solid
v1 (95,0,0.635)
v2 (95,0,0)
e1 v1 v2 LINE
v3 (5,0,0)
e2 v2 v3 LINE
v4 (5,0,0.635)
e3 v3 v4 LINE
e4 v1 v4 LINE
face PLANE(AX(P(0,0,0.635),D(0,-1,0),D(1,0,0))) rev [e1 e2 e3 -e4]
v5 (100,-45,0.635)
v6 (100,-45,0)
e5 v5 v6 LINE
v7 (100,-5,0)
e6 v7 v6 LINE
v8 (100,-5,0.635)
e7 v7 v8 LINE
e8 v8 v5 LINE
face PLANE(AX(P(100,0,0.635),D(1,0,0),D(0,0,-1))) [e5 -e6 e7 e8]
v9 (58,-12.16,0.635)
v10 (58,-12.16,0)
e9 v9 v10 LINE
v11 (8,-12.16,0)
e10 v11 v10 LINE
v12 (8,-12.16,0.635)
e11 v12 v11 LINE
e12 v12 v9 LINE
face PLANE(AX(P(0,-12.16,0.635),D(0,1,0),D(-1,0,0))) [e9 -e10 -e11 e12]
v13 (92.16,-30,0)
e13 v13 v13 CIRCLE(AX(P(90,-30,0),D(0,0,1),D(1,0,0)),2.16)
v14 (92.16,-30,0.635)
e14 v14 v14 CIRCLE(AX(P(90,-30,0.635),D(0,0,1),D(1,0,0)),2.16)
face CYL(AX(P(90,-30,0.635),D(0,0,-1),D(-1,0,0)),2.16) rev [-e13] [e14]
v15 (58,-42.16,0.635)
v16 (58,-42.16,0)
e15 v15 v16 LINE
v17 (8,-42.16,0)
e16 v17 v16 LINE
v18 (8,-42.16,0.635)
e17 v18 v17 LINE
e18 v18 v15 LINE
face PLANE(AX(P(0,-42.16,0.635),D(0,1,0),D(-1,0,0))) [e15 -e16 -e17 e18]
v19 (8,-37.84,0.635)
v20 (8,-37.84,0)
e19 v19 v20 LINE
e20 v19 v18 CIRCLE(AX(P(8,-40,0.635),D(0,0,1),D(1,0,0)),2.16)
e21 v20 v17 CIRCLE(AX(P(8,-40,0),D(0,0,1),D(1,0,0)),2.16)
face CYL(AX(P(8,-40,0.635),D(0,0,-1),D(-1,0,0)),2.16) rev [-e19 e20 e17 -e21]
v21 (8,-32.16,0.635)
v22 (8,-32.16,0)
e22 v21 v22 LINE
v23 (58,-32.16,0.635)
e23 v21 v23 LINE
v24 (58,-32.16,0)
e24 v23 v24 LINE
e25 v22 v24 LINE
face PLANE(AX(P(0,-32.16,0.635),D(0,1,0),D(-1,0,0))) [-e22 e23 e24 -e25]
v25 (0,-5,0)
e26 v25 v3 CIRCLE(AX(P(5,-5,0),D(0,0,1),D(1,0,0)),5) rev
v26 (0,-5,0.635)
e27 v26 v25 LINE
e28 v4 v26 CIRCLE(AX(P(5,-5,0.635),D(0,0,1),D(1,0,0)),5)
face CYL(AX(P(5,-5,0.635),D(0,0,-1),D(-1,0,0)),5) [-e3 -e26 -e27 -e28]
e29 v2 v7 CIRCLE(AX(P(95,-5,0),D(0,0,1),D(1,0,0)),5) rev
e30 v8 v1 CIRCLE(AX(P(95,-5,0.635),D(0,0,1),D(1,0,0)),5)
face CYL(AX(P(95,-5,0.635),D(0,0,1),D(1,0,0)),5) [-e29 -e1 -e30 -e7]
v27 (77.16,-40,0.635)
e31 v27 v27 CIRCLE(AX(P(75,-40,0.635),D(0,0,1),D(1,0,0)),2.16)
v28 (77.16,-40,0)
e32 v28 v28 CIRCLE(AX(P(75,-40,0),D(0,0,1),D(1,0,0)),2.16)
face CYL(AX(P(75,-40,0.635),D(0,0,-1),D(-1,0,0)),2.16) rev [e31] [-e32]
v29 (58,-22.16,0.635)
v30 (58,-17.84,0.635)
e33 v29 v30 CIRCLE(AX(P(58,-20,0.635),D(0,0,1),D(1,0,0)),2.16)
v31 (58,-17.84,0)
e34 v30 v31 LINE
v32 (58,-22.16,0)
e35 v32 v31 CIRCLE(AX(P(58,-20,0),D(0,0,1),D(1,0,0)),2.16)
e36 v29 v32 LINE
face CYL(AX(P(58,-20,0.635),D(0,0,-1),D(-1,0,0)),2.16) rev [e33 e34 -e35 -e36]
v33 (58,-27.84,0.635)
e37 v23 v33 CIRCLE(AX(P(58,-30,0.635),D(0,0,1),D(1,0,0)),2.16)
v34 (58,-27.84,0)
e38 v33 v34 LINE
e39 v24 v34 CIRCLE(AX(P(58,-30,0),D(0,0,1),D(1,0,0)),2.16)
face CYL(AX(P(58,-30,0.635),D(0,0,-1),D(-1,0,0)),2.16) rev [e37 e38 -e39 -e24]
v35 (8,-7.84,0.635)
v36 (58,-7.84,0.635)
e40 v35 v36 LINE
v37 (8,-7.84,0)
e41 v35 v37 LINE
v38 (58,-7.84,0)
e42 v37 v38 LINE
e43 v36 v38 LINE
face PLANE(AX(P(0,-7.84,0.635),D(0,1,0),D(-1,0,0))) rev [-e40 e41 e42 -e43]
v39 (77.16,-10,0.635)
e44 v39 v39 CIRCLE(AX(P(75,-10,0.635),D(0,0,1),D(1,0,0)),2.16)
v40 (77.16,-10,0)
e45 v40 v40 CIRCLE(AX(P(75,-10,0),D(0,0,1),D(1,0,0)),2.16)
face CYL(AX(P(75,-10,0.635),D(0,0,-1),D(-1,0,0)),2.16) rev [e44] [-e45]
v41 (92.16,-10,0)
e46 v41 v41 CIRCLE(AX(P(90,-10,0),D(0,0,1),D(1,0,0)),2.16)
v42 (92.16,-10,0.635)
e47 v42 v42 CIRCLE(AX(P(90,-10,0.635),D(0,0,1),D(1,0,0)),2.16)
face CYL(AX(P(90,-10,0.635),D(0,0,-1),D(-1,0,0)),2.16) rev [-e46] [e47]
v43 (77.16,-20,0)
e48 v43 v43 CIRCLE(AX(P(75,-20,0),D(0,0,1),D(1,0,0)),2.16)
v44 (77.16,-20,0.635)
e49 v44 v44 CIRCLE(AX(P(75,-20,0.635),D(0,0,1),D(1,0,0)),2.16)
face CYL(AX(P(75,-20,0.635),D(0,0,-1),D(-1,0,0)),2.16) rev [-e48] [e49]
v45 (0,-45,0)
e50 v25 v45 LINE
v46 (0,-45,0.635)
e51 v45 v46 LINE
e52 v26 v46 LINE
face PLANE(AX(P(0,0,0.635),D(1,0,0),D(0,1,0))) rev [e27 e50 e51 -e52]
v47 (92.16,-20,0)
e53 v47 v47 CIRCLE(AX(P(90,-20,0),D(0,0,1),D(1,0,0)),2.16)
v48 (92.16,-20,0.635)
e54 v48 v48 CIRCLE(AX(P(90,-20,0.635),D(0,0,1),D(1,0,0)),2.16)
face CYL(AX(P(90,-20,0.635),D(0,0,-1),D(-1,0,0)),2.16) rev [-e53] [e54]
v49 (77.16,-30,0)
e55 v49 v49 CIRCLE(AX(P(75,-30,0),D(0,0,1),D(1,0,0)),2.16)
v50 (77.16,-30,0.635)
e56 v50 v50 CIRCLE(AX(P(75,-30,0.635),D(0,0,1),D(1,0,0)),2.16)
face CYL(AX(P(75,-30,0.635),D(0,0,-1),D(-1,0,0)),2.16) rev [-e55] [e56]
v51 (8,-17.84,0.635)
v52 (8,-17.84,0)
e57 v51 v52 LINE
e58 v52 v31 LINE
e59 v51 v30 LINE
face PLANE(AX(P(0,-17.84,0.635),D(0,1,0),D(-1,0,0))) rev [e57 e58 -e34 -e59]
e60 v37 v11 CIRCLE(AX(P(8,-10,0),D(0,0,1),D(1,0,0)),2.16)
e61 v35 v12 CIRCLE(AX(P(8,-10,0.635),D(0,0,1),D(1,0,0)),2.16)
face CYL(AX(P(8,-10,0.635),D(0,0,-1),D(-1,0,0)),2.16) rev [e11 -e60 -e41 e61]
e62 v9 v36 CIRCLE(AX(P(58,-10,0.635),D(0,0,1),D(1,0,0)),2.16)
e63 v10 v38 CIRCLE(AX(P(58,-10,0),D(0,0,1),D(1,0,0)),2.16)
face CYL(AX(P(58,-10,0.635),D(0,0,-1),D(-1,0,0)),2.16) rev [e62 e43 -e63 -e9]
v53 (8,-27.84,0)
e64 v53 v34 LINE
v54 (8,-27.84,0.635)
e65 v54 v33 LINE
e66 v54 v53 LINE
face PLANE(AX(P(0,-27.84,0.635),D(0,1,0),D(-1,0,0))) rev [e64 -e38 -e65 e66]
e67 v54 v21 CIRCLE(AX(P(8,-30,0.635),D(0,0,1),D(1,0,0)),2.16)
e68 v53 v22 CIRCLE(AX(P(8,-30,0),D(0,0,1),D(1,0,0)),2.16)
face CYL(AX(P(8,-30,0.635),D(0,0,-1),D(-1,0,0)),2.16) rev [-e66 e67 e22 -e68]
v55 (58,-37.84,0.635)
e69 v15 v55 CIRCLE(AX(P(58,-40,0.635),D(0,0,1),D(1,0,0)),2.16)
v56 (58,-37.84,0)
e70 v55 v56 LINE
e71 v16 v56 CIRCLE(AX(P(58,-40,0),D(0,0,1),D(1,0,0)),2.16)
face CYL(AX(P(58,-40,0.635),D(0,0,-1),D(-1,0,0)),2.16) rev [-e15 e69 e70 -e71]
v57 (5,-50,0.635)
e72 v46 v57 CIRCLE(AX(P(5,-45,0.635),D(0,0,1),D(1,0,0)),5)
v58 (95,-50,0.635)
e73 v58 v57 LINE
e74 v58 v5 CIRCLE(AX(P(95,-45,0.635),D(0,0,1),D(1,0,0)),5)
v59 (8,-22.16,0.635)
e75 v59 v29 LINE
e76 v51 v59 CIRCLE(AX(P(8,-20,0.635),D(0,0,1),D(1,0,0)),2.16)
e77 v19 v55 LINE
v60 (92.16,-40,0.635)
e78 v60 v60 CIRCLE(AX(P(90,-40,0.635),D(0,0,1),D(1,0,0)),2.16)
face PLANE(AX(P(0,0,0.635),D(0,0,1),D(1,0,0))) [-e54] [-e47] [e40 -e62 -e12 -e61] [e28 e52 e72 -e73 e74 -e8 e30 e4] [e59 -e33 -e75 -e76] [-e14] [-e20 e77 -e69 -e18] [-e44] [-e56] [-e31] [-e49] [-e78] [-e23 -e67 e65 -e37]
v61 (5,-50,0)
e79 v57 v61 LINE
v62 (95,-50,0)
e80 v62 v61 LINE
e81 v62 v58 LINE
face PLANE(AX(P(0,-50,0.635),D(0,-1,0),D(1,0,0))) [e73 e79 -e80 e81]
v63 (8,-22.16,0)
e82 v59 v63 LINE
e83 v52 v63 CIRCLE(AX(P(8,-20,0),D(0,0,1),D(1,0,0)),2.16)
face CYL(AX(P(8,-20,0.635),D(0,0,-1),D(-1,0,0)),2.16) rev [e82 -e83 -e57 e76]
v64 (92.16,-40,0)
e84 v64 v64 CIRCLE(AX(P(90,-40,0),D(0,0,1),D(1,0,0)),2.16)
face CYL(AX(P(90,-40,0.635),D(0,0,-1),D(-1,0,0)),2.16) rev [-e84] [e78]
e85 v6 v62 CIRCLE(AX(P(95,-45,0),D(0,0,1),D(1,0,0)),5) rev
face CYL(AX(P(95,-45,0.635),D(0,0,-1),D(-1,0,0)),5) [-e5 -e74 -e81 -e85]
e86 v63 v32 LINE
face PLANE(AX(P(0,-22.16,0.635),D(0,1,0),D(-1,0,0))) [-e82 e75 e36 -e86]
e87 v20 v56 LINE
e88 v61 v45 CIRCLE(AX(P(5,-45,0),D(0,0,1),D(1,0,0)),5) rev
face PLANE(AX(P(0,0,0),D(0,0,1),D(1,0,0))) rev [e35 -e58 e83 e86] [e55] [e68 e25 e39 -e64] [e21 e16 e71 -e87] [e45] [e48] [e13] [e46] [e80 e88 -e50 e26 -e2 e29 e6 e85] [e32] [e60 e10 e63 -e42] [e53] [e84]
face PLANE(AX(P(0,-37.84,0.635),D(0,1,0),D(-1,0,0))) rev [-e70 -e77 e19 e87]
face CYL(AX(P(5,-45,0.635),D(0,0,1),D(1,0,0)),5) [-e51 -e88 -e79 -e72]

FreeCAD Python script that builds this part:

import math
import FreeCAD as App
import Part
import Sketcher


def edges_at(feature, points):
    """Names of the edges that pass closest to the given points."""
    edges = feature.Shape.Edges
    near = lambda p: min(range(len(edges)), key=lambda i: edges[i].distToShape(Part.Vertex(*p))[0])
    return sorted({f"Edge{near(p) + 1}" for p in points})


def add_polygon(sketch, points):
    """Adds a closed chain of lines whose ends are joined by coincident constraints."""
    first, n = sketch.GeometryCount, len(points)
    for a, b in zip(points, points[1:] + points[:1]):
        sketch.addGeometry(Part.LineSegment(App.Vector(*a, 0), App.Vector(*b, 0)), False)
    for i in range(n):
        sketch.addConstraint(Sketcher.Constraint("Coincident", first + i, 2, first + (i + 1) % n, 1))

doc = App.newDocument("Part")
params = doc.addObject("Spreadsheet::Sheet", "Params")
for row, (alias, value) in enumerate([
    ("sketch1_diameter", "4.32 mm"),
    ("sketch1_width", "100 mm"),
    ("sketch1_width2", "50 mm"),
    ("pad1_length", "0.635 mm"),
    ("fillet_radius", "5 mm"),
], start=1):
    params.set(f"A{row}", alias)
    params.set(f"B{row}", "=" + value)
    params.setAlias(f"B{row}", alias)

body = doc.addObject("PartDesign::Body", "Body")

# Sketch on XY plane
sketch1 = doc.addObject("Sketcher::SketchObject", "Sketch")
body.addObject(sketch1)
sketch1.AttachmentSupport = (doc.XY_Plane, [""])
sketch1.MapMode = "FlatFace"
add_polygon(sketch1, [(0, 0), (0, -50), (100, -50), (100, 0)])  # lines 0-3
sketch1.addGeometry(Part.LineSegment(App.Vector(58, -42.2, 0), App.Vector(8, -42.2, 0)), False)  # 4
sketch1.addGeometry(Part.ArcOfCircle(Part.Circle(App.Vector(8, -40, 0), App.Vector(0, 0, 1), 2.2), math.radians(90), math.radians(270)), False)  # 5
sketch1.addGeometry(Part.LineSegment(App.Vector(8, -37.8, 0), App.Vector(58, -37.8, 0)), False)  # 6
sketch1.addGeometry(Part.ArcOfCircle(Part.Circle(App.Vector(58, -40, 0), App.Vector(0, 0, 1), 2.2), math.radians(-90), math.radians(90)), False)  # 7
sketch1.addGeometry(Part.LineSegment(App.Vector(58, -32.2, 0), App.Vector(8, -32.2, 0)), False)  # 8
sketch1.addGeometry(Part.ArcOfCircle(Part.Circle(App.Vector(8, -30, 0), App.Vector(0, 0, 1), 2.2), math.radians(90), math.radians(270)), False)  # 9
sketch1.addGeometry(Part.LineSegment(App.Vector(8, -27.8, 0), App.Vector(58, -27.8, 0)), False)  # 10
sketch1.addGeometry(Part.ArcOfCircle(Part.Circle(App.Vector(58, -30, 0), App.Vector(0, 0, 1), 2.2), math.radians(-90), math.radians(90)), False)  # 11
sketch1.addGeometry(Part.Circle(App.Vector(75, -40, 0), App.Vector(0, 0, 1), 2.2), False)  # 12
sketch1.addGeometry(Part.Circle(App.Vector(90, -40, 0), App.Vector(0, 0, 1), 2.2), False)  # 13
sketch1.addGeometry(Part.Circle(App.Vector(75, -30, 0), App.Vector(0, 0, 1), 2.2), False)  # 14
sketch1.addGeometry(Part.Circle(App.Vector(90, -30, 0), App.Vector(0, 0, 1), 2.2), False)  # 15
sketch1.addGeometry(Part.LineSegment(App.Vector(58, -22.2, 0), App.Vector(8, -22.2, 0)), False)  # 16
sketch1.addGeometry(Part.ArcOfCircle(Part.Circle(App.Vector(8, -20, 0), App.Vector(0, 0, 1), 2.2), math.radians(90), math.radians(270)), False)  # 17
sketch1.addGeometry(Part.LineSegment(App.Vector(8, -17.8, 0), App.Vector(58, -17.8, 0)), False)  # 18
sketch1.addGeometry(Part.ArcOfCircle(Part.Circle(App.Vector(58, -20, 0), App.Vector(0, 0, 1), 2.2), math.radians(-90), math.radians(90)), False)  # 19
sketch1.addGeometry(Part.ArcOfCircle(Part.Circle(App.Vector(8, -10, 0), App.Vector(0, 0, 1), 2.2), math.radians(90), math.radians(270)), False)  # 20
sketch1.addGeometry(Part.LineSegment(App.Vector(8, -7.8, 0), App.Vector(58, -7.8, 0)), False)  # 21
sketch1.addGeometry(Part.ArcOfCircle(Part.Circle(App.Vector(58, -10, 0), App.Vector(0, 0, 1), 2.2), math.radians(-90), math.radians(90)), False)  # 22
sketch1.addGeometry(Part.LineSegment(App.Vector(58, -12.2, 0), App.Vector(8, -12.2, 0)), False)  # 23
sketch1.addGeometry(Part.Circle(App.Vector(75, -20, 0), App.Vector(0, 0, 1), 2.2), False)  # 24
sketch1.addGeometry(Part.Circle(App.Vector(90, -20, 0), App.Vector(0, 0, 1), 2.2), False)  # 25
sketch1.addGeometry(Part.Circle(App.Vector(75, -10, 0), App.Vector(0, 0, 1), 2.2), False)  # 26
sketch1.addGeometry(Part.Circle(App.Vector(90, -10, 0), App.Vector(0, 0, 1), 2.2), False)  # 27
sketch1.addConstraint([
    Sketcher.Constraint("Tangent", 4, 2, 5, 2),
    Sketcher.Constraint("Tangent", 5, 1, 6, 1),
    Sketcher.Constraint("Tangent", 6, 2, 7, 2),
    Sketcher.Constraint("Tangent", 7, 1, 4, 1),
    Sketcher.Constraint("Tangent", 8, 2, 9, 2),
    Sketcher.Constraint("Tangent", 9, 1, 10, 1),
    Sketcher.Constraint("Tangent", 10, 2, 11, 2),
    Sketcher.Constraint("Tangent", 11, 1, 8, 1),
    Sketcher.Constraint("Tangent", 16, 2, 17, 2),
    Sketcher.Constraint("Tangent", 17, 1, 18, 1),
    Sketcher.Constraint("Tangent", 18, 2, 19, 2),
    Sketcher.Constraint("Tangent", 19, 1, 16, 1),
    Sketcher.Constraint("Tangent", 20, 1, 21, 1),
    Sketcher.Constraint("Tangent", 21, 2, 22, 2),
    Sketcher.Constraint("Tangent", 22, 1, 23, 1),
    Sketcher.Constraint("Tangent", 23, 2, 20, 2),
    Sketcher.Constraint("Vertical", 0),
    Sketcher.Constraint("Horizontal", 1),
    Sketcher.Constraint("Vertical", 2),
    Sketcher.Constraint("Horizontal", 3),
    Sketcher.Constraint("Horizontal", 4),
    Sketcher.Constraint("Horizontal", 6),
    Sketcher.Constraint("Horizontal", 8),
    Sketcher.Constraint("Horizontal", 10),
    Sketcher.Constraint("Horizontal", 16),
    Sketcher.Constraint("Horizontal", 18),
    Sketcher.Constraint("Horizontal", 21),
    Sketcher.Constraint("Horizontal", 23),
    Sketcher.Constraint("Coincident", 3, 2, -1, 1),
    Sketcher.Constraint("Equal", 7, 9),
    Sketcher.Constraint("Equal", 11, 12),
    Sketcher.Constraint("Equal", 12, 13),
    Sketcher.Constraint("Equal", 13, 14),
    Sketcher.Constraint("Equal", 14, 15),
    Sketcher.Constraint("Equal", 15, 17),
    Sketcher.Constraint("Equal", 19, 20),
    Sketcher.Constraint("Equal", 22, 24),
    Sketcher.Constraint("Equal", 24, 25),
    Sketcher.Constraint("Equal", 25, 26),
    Sketcher.Constraint("Equal", 26, 27),
    Sketcher.Constraint("Horizontal", 7, 3, 12, 3),
    Sketcher.Constraint("Horizontal", 12, 3, 13, 3),
    Sketcher.Constraint("Horizontal", 11, 3, 14, 3),
    Sketcher.Constraint("Horizontal", 14, 3, 15, 3),
    Sketcher.Constraint("Horizontal", 19, 3, 24, 3),
    Sketcher.Constraint("Horizontal", 24, 3, 25, 3),
    Sketcher.Constraint("Horizontal", 22, 3, 26, 3),
    Sketcher.Constraint("Horizontal", 26, 3, 27, 3),
    Sketcher.Constraint("Vertical", 5, 3, 9, 3),
    Sketcher.Constraint("Vertical", 7, 3, 11, 3),
    Sketcher.Constraint("Vertical", 12, 3, 14, 3),
    Sketcher.Constraint("Vertical", 13, 3, 15, 3),
    Sketcher.Constraint("Vertical", 9, 3, 17, 3),
    Sketcher.Constraint("Vertical", 11, 3, 19, 3),
    Sketcher.Constraint("Vertical", 17, 3, 20, 3),
    Sketcher.Constraint("Vertical", 19, 3, 22, 3),
    Sketcher.Constraint("Vertical", 14, 3, 24, 3),
    Sketcher.Constraint("Vertical", 15, 3, 25, 3),
    Sketcher.Constraint("Vertical", 24, 3, 26, 3),
    Sketcher.Constraint("Vertical", 25, 3, 27, 3),
    Sketcher.Constraint("Equal", 23, 0),
    Sketcher.Constraint("Diameter", 12, 4.32),
    Sketcher.Constraint("DistanceX", 1, 1, 1, 2, 100.0),
    Sketcher.Constraint("DistanceX", 4, 2, 4, 1, 50.0),
    Sketcher.Constraint("DistanceX", -1, 1, 5, 3, 8.0),
    Sketcher.Constraint("DistanceY", 5, 3, -1, 1, 40.0),
    Sketcher.Constraint("DistanceY", 9, 3, -1, 1, 30.0),
    Sketcher.Constraint("DistanceX", -1, 1, 12, 3, 75.0),
    Sketcher.Constraint("DistanceX", -1, 1, 13, 3, 90.0),
    Sketcher.Constraint("DistanceY", 17, 3, -1, 1, 20.0),
    Sketcher.Constraint("DistanceY", 20, 3, -1, 1, 10.0),
])
sketch1.setExpression("Constraints[65]", "Params.sketch1_diameter")
sketch1.setExpression("Constraints[66]", "Params.sketch1_width")
sketch1.setExpression("Constraints[67]", "Params.sketch1_width2")
pad1 = doc.addObject("PartDesign::Pad", "Pad")
body.addObject(pad1)
pad1.Profile = sketch1
pad1.setExpression("Length", "Params.pad1_length")
doc.recompute()

fillet = doc.addObject("PartDesign::Fillet", "Fillet")
body.addObject(fillet)
fillet.Base = (pad1, edges_at(pad1, [
    (100, 0, 0.318),
    (100, -50, 0.318),
    (0, -50, 0.318),
    (0, 0, 0.318),
]))
fillet.setExpression("Radius", "Params.fillet_radius")

doc.recompute()
